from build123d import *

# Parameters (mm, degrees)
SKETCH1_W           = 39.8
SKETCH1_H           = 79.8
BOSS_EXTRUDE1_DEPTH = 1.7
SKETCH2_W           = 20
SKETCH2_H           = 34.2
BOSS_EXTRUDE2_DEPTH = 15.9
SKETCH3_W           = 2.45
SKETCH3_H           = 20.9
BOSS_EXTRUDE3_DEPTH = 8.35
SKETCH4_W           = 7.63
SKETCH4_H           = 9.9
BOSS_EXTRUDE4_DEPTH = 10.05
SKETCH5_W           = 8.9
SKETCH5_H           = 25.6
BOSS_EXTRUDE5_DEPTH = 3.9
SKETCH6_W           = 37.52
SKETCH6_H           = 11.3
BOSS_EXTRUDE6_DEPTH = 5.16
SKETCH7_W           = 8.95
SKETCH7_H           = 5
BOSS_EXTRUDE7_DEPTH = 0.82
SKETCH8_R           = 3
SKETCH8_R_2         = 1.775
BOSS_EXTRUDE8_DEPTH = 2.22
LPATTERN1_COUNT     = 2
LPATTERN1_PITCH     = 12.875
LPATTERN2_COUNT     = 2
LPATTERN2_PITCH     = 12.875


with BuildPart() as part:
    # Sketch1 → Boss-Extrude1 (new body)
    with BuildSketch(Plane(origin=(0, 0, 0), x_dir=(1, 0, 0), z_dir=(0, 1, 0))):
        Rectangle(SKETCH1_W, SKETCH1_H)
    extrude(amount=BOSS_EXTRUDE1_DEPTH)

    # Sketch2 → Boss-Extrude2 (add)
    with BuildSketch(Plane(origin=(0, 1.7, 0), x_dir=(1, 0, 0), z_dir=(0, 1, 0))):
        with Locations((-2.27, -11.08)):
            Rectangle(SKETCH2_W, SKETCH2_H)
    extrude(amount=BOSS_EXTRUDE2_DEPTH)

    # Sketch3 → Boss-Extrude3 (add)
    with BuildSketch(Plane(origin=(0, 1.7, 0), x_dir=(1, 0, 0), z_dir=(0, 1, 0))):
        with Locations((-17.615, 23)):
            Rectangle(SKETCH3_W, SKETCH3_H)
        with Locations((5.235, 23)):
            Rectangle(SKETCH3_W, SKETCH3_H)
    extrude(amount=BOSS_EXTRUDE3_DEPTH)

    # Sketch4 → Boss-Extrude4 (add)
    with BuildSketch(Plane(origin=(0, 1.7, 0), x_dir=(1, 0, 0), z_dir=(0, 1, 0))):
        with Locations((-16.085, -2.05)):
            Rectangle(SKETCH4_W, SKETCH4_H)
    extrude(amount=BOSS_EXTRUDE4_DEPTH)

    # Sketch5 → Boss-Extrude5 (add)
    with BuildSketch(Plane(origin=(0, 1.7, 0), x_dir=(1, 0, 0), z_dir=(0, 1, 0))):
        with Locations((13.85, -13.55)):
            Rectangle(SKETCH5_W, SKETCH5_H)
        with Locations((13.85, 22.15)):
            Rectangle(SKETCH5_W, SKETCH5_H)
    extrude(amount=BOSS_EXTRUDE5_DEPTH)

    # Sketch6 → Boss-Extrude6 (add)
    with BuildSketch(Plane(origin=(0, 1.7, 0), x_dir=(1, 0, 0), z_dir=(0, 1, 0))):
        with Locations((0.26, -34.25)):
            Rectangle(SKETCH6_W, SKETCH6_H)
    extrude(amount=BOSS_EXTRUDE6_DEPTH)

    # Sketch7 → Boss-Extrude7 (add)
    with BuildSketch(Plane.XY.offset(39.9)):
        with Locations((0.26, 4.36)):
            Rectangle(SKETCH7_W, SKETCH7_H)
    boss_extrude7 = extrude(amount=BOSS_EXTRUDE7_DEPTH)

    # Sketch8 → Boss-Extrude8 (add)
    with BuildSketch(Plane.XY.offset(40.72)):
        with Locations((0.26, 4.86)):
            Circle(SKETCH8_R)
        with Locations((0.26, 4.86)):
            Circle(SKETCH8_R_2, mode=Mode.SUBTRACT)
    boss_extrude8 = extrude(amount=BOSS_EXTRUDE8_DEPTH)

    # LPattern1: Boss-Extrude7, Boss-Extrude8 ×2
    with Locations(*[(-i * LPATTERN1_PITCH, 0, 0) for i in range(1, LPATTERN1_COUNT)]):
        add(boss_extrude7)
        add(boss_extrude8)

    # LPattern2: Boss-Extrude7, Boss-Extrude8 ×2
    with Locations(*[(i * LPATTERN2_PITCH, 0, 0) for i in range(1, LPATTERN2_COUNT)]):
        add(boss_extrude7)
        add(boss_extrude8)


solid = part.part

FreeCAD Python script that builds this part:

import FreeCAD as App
import Part
import Sketcher
from FreeCAD import Vector


def add_polygon(sketch, points):
    """Adds a closed chain of lines whose ends are joined by coincident constraints."""
    first, n = sketch.GeometryCount, len(points)
    for a, b in zip(points, points[1:] + points[:1]):
        sketch.addGeometry(Part.LineSegment(App.Vector(*a, 0), App.Vector(*b, 0)), False)
    for i in range(n):
        sketch.addConstraint(Sketcher.Constraint("Coincident", first + i, 2, first + (i + 1) % n, 1))

doc = App.newDocument("Part")
params = doc.addObject("Spreadsheet::Sheet", "Params")
for row, (alias, value) in enumerate([
    ("sketch1_width", "39.8 mm"),
    ("sketch1_height", "79.8 mm"),
    ("pad1_length", "1.7 mm"),
    ("sketch2_width", "20 mm"),
    ("sketch2_height", "34.2 mm"),
    ("pad2_length", "15.9 mm"),
    ("sketch3_height", "20.9 mm"),
    ("sketch3_width", "2.45 mm"),
    ("pad3_length", "8.35 mm"),
    ("sketch4_height", "9.9 mm"),
    ("sketch4_width", "7.63 mm"),
    ("pad4_length", "10.05 mm"),
    ("sketch5_width", "8.9 mm"),
    ("sketch5_height", "25.6 mm"),
    ("pad5_length", "3.9 mm"),
    ("sketch6_height", "11.3 mm"),
    ("sketch6_width", "37.52 mm"),
    ("pad6_length", "5.16 mm"),
    ("sketch7_height", "5 mm"),
    ("sketch7_width", "8.95 mm"),
    ("pad7_length", "0.82 mm"),
    ("sketch8_diameter", "6 mm"),
    ("sketch8_diameter2", "3.55 mm"),
    ("pad8_length", "2.22 mm"),
    ("linearpattern_pitch", "12.875 mm"),
    ("linearpattern2_pitch", "12.875 mm"),
], start=1):
    params.set(f"A{row}", alias)
    params.set(f"B{row}", "=" + value)
    params.setAlias(f"B{row}", alias)

body = doc.addObject("PartDesign::Body", "Body")

sketch1 = body.newObject("Sketcher::SketchObject", "Sketch")
sketch1.AttachmentSupport = (doc.getObject("XZ_Plane"), [""])
sketch1.MapMode = "FlatFace"
add_polygon(sketch1, [(-19.9, -39.9), (-19.9, 39.9), (19.9, 39.9), (19.9, -39.9)])
sketch1.addConstraint(Sketcher.Constraint("Vertical", 0))
sketch1.addConstraint(Sketcher.Constraint("Horizontal", 1))
sketch1.addConstraint(Sketcher.Constraint("Vertical", 2))
sketch1.addConstraint(Sketcher.Constraint("Horizontal", 3))
sketch1.addConstraint(Sketcher.Constraint("Symmetric", 0, 2, 2, 2, -1, 1))
sketch1.addConstraint(Sketcher.Constraint("DistanceX", 1, 1, 1, 2, 39.8))
sketch1.addConstraint(Sketcher.Constraint("DistanceY", 0, 1, 0, 2, 79.8))
sketch1.setExpression("Constraints[9]", "Params.sketch1_width")
sketch1.setExpression("Constraints[10]", "Params.sketch1_height")
pad1 = body.newObject("PartDesign::Pad", "Pad")
pad1.Profile = sketch1
pad1.setExpression("Length", "Params.pad1_length")
pad1.Reversed = True

sketch2 = body.newObject("Sketcher::SketchObject", "Sketch001")
sketch2.AttachmentSupport = (doc.getObject("XZ_Plane"), [""])
sketch2.MapMode = "FlatFace"
sketch2.AttachmentOffset = App.Placement(Vector(0, 0, -1.7), App.Rotation())
add_polygon(sketch2, [(-12.27, -6.02), (-12.27, 28.18), (7.73, 28.18), (7.73, -6.02)])
sketch2.addConstraint(Sketcher.Constraint("Vertical", 0))
sketch2.addConstraint(Sketcher.Constraint("Horizontal", 1))
sketch2.addConstraint(Sketcher.Constraint("Vertical", 2))
sketch2.addConstraint(Sketcher.Constraint("Horizontal", 3))
sketch2.addConstraint(Sketcher.Constraint("DistanceX", 1, 1, 1, 2, 20.0))
sketch2.addConstraint(Sketcher.Constraint("DistanceY", 0, 1, 0, 2, 34.2))
sketch2.addConstraint(Sketcher.Constraint("DistanceX", 0, 2, -1, 1, 12.27))
sketch2.addConstraint(Sketcher.Constraint("DistanceY", -1, 1, 0, 2, 28.18))
sketch2.setExpression("Constraints[8]", "Params.sketch2_width")
sketch2.setExpression("Constraints[9]", "Params.sketch2_height")
pad2 = body.newObject("PartDesign::Pad", "Pad001")
pad2.Profile = sketch2
pad2.setExpression("Length", "Params.pad2_length")
pad2.Reversed = True

sketch3 = body.newObject("Sketcher::SketchObject", "Sketch002")
sketch3.AttachmentSupport = (doc.getObject("XZ_Plane"), [""])
sketch3.MapMode = "FlatFace"
sketch3.AttachmentOffset = App.Placement(Vector(0, 0, -1.7), App.Rotation())
add_polygon(sketch3, [(-18.84, -33.45), (-18.84, -12.55), (-16.39, -12.55), (-16.39, -33.45)])
add_polygon(sketch3, [(4.01, -33.45), (4.01, -12.55), (6.46, -12.55), (6.46, -33.45)])
sketch3.addConstraint(Sketcher.Constraint("Vertical", 0))
sketch3.addConstraint(Sketcher.Constraint("Horizontal", 1))
sketch3.addConstraint(Sketcher.Constraint("Vertical", 2))
sketch3.addConstraint(Sketcher.Constraint("Horizontal", 3))
sketch3.addConstraint(Sketcher.Constraint("Vertical", 4))
sketch3.addConstraint(Sketcher.Constraint("Horizontal", 5))
sketch3.addConstraint(Sketcher.Constraint("Vertical", 6))
sketch3.addConstraint(Sketcher.Constraint("Horizontal", 7))
sketch3.addConstraint(Sketcher.Constraint("Horizontal", 1, 2, 4, 2))
sketch3.addConstraint(Sketcher.Constraint("Horizontal", 3, 2, 6, 2))
sketch3.addConstraint(Sketcher.Constraint("Equal", 3, 5))
sketch3.addConstraint(Sketcher.Constraint("DistanceY", 0, 1, 0, 2, 20.9))
sketch3.addConstraint(Sketcher.Constraint("DistanceX", 1, 1, 1, 2, 2.45))
sketch3.addConstraint(Sketcher.Constraint("DistanceX", 1, 2, 4, 2, 20.4))
sketch3.addConstraint(Sketcher.Constraint("DistanceX", 0, 2, -1, 1, 18.84))
sketch3.addConstraint(Sketcher.Constraint("DistanceY", 0, 2, -1, 1, 12.55))
sketch3.setExpression("Constraints[19]", "Params.sketch3_height")
sketch3.setExpression("Constraints[20]", "Params.sketch3_width")
pad3 = body.newObject("PartDesign::Pad", "Pad002")
pad3.Profile = sketch3
pad3.setExpression("Length", "Params.pad3_length")
pad3.Reversed = True

sketch4 = body.newObject("Sketcher::SketchObject", "Sketch003")
sketch4.AttachmentSupport = (doc.getObject("XZ_Plane"), [""])
sketch4.MapMode = "FlatFace"
sketch4.AttachmentOffset = App.Placement(Vector(0, 0, -1.7), App.Rotation())
add_polygon(sketch4, [(-19.9, -2.9), (-19.9, 7), (-12.27, 7), (-12.27, -2.9)])
sketch4.addConstraint(Sketcher.Constraint("Vertical", 0))
sketch4.addConstraint(Sketcher.Constraint("Horizontal", 1))
sketch4.addConstraint(Sketcher.Constraint("Vertical", 2))
sketch4.addConstraint(Sketcher.Constraint("Horizontal", 3))
sketch4.addConstraint(Sketcher.Constraint("DistanceY", 0, 1, 0, 2, 9.9))
sketch4.addConstraint(Sketcher.Constraint("DistanceY", -1, 1, 0, 2, 7.0))
sketch4.addConstraint(Sketcher.Constraint("DistanceX", 1, 1, 1, 2, 7.63))
sketch4.addConstraint(Sketcher.Constraint("DistanceX", 0, 2, -1, 1, 19.9))
sketch4.setExpression("Constraints[8]", "Params.sketch4_height")
sketch4.setExpression("Constraints[10]", "Params.sketch4_width")
pad4 = body.newObject("PartDesign::Pad", "Pad003")
pad4.Profile = sketch4
pad4.setExpression("Length", "Params.pad4_length")
pad4.Reversed = True

sketch5 = body.newObject("Sketcher::SketchObject", "Sketch004")
sketch5.AttachmentSupport = (doc.getObject("XZ_Plane"), [""])
sketch5.MapMode = "FlatFace"
sketch5.AttachmentOffset = App.Placement(Vector(0, 0, -1.7), App.Rotation())
add_polygon(sketch5, [(9.4, 0.75), (9.4, 26.35), (18.3, 26.35), (18.3, 0.75)])
add_polygon(sketch5, [(9.4, -34.95), (9.4, -9.35), (18.3, -9.35), (18.3, -34.95)])
sketch5.addConstraint(Sketcher.Constraint("Vertical", 0))
sketch5.addConstraint(Sketcher.Constraint("Horizontal", 1))
sketch5.addConstraint(Sketcher.Constraint("Vertical", 2))
sketch5.addConstraint(Sketcher.Constraint("Horizontal", 3))
sketch5.addConstraint(Sketcher.Constraint("Vertical", 4))
sketch5.addConstraint(Sketcher.Constraint("Horizontal", 5))
sketch5.addConstraint(Sketcher.Constraint("Vertical", 6))
sketch5.addConstraint(Sketcher.Constraint("Horizontal", 7))
sketch5.addConstraint(Sketcher.Constraint("Vertical", 3, 2, 4, 2))
sketch5.addConstraint(Sketcher.Constraint("Vertical", 2, 2, 5, 2))
sketch5.addConstraint(Sketcher.Constraint("Equal", 2, 4))
sketch5.addConstraint(Sketcher.Constraint("DistanceX", 1, 1, 1, 2, 8.9))
sketch5.addConstraint(Sketcher.Constraint("DistanceY", 0, 1, 0, 2, 25.6))
sketch5.addConstraint(Sketcher.Constraint("DistanceX", -1, 1, 0, 2, 9.4))
sketch5.addConstraint(Sketcher.Constraint("DistanceY", 4, 2, 3, 2, 10.1))
sketch5.addConstraint(Sketcher.Constraint("DistanceY", -1, 1, 0, 2, 26.35))
sketch5.setExpression("Constraints[19]", "Params.sketch5_width")
sketch5.setExpression("Constraints[20]", "Params.sketch5_height")
pad5 = body.newObject("PartDesign::Pad", "Pad004")
pad5.Profile = sketch5
pad5.setExpression("Length", "Params.pad5_length")
pad5.Reversed = True

sketch6 = body.newObject("Sketcher::SketchObject", "Sketch005")
sketch6.AttachmentSupport = (doc.getObject("XZ_Plane"), [""])
sketch6.MapMode = "FlatFace"
sketch6.AttachmentOffset = App.Placement(Vector(0, 0, -1.7), App.Rotation())
add_polygon(sketch6, [(-18.5, 28.6), (-18.5, 39.9), (19.02, 39.9), (19.02, 28.6)])
sketch6.addConstraint(Sketcher.Constraint("Vertical", 0))
sketch6.addConstraint(Sketcher.Constraint("Horizontal", 1))
sketch6.addConstraint(Sketcher.Constraint("Vertical", 2))
sketch6.addConstraint(Sketcher.Constraint("Horizontal", 3))
sketch6.addConstraint(Sketcher.Constraint("DistanceY", 0, 1, 0, 2, 11.3))
sketch6.addConstraint(Sketcher.Constraint("DistanceX", 1, 1, 1, 2, 37.52))
sketch6.addConstraint(Sketcher.Constraint("DistanceX", 0, 2, -1, 1, 18.5))
sketch6.addConstraint(Sketcher.Constraint("DistanceY", -1, 1, 0, 2, 39.9))
sketch6.setExpression("Constraints[8]", "Params.sketch6_height")
sketch6.setExpression("Constraints[9]", "Params.sketch6_width")
pad6 = body.newObject("PartDesign::Pad", "Pad005")
pad6.Profile = sketch6
pad6.setExpression("Length", "Params.pad6_length")
pad6.Reversed = True

sketch7 = body.newObject("Sketcher::SketchObject", "Sketch006")
sketch7.AttachmentSupport = (doc.getObject("XY_Plane"), [""])
sketch7.MapMode = "FlatFace"
sketch7.AttachmentOffset = App.Placement(Vector(0, 0, 39.9), App.Rotation())
add_polygon(sketch7, [(-4.215, 6.86), (-4.215, 1.86), (4.735, 1.86), (4.735, 6.86)])
sketch7.addConstraint(Sketcher.Constraint("Vertical", 0))
sketch7.addConstraint(Sketcher.Constraint("Horizontal", 1))
sketch7.addConstraint(Sketcher.Constraint("Vertical", 2))
sketch7.addConstraint(Sketcher.Constraint("Horizontal", 3))
sketch7.addConstraint(Sketcher.Constraint("DistanceY", 0, 2, 0, 1, 5.0))
sketch7.addConstraint(Sketcher.Constraint("DistanceX", 1, 1, 1, 2, 8.95))
sketch7.addConstraint(Sketcher.Constraint("DistanceY", -1, 1, 0, 2, 1.86))
sketch7.addConstraint(Sketcher.Constraint("DistanceX", 0, 2, -1, 1, 4.215))
sketch7.setExpression("Constraints[8]", "Params.sketch7_height")
sketch7.setExpression("Constraints[9]", "Params.sketch7_width")
pad7 = body.newObject("PartDesign::Pad", "Pad006")
pad7.Profile = sketch7
pad7.setExpression("Length", "Params.pad7_length")

sketch8 = body.newObject("Sketcher::SketchObject", "Sketch007")
sketch8.AttachmentSupport = (doc.getObject("XY_Plane"), [""])
sketch8.MapMode = "FlatFace"
sketch8.AttachmentOffset = App.Placement(Vector(0, 0, 40.72), App.Rotation())
sketch8.addGeometry(Part.Circle(Vector(0.26, 4.86, 0), Vector(0, 0, 1), 3), False)
sketch8.addGeometry(Part.Circle(Vector(0.26, 4.86, 0), Vector(0, 0, 1), 1.775), False)
sketch8.addConstraint(Sketcher.Constraint("Coincident", 1, 3, 0, 3))
sketch8.addConstraint(Sketcher.Constraint("Diameter", 0, 6.0))
sketch8.addConstraint(Sketcher.Constraint("Diameter", 1, 3.55))
sketch8.addConstraint(Sketcher.Constraint("DistanceX", -1, 1, 0, 3, 0.26))
sketch8.addConstraint(Sketcher.Constraint("DistanceY", -1, 1, 0, 3, 4.86))
sketch8.setExpression("Constraints[1]", "Params.sketch8_diameter")
sketch8.setExpression("Constraints[2]", "Params.sketch8_diameter2")
pad8 = body.newObject("PartDesign::Pad", "Pad007")
pad8.Profile = sketch8
pad8.setExpression("Length", "Params.pad8_length")
doc.recompute()

linearpattern = body.newObject("PartDesign::LinearPattern", "LinearPattern")
linearpattern.Originals = [pad7, pad8]
linearpattern.Direction = (doc.getObject("X_Axis"), [""])
linearpattern.Mode = "offset"
linearpattern.setExpression("Offset", "Params.linearpattern_pitch")
linearpattern.Occurrences = 2
linearpattern.Reversed = True
body.Tip = linearpattern
doc.recompute()

linearpattern2 = body.newObject("PartDesign::LinearPattern", "LinearPattern001")
linearpattern2.Originals = [pad7, pad8]
linearpattern2.Direction = (doc.getObject("X_Axis"), [""])
linearpattern2.Mode = "offset"
linearpattern2.setExpression("Offset", "Params.linearpattern2_pitch")
linearpattern2.Occurrences = 2
body.Tip = linearpattern2

doc.recompute()
